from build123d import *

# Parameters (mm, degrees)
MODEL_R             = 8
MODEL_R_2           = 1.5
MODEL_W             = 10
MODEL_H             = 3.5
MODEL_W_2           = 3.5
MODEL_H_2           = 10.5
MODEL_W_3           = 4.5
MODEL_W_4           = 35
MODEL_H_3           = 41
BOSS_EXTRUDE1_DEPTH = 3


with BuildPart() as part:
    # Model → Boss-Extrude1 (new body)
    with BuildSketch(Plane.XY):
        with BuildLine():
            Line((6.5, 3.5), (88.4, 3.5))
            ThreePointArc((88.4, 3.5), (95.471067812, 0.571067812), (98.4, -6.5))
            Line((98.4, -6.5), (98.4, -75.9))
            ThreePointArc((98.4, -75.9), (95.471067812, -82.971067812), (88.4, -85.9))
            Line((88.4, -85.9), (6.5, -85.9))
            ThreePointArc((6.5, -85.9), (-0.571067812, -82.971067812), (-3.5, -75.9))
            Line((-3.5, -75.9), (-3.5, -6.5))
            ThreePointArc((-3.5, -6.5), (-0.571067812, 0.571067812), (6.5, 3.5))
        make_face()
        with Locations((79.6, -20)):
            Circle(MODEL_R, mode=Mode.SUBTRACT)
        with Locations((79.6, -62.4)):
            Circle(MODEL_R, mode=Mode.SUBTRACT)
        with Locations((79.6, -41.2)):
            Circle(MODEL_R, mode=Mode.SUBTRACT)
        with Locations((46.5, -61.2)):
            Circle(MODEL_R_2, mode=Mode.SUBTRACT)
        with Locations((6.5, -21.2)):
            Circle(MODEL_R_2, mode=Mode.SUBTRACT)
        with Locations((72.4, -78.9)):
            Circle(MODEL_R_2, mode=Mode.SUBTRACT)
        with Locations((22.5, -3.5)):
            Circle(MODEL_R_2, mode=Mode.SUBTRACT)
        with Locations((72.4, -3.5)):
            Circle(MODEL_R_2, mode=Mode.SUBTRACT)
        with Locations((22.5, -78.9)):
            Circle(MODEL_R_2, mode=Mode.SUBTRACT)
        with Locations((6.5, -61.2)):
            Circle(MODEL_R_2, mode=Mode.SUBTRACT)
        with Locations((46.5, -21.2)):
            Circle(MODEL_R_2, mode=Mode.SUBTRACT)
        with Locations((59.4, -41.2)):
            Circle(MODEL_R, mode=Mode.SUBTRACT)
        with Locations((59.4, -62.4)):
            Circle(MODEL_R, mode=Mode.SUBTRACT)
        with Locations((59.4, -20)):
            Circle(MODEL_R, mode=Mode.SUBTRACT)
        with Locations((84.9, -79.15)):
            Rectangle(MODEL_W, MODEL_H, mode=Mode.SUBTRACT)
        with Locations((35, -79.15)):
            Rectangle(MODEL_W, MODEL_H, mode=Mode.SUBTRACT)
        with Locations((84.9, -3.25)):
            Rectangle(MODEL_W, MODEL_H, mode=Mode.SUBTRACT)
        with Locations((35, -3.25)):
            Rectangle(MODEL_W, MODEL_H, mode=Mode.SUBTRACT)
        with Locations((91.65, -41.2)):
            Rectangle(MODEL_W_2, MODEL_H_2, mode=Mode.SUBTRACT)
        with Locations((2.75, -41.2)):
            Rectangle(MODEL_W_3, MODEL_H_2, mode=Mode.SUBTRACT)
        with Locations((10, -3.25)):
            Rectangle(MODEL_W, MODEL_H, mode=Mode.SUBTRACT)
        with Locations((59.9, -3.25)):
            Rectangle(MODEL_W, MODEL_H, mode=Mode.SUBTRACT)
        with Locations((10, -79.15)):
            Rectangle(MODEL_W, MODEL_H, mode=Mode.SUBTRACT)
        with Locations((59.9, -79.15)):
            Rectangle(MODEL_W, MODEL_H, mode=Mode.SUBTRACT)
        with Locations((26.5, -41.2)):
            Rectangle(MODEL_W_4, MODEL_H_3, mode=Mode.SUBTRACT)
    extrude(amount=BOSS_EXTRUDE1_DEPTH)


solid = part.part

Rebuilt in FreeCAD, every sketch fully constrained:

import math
import FreeCAD as App
import Part
import Sketcher

V = App.Vector
Q = App.Units.Quantity


def add_polygon(sketch, points):
    """Adds a closed chain of lines whose ends are joined by coincident constraints."""
    first, n = sketch.GeometryCount, len(points)
    for a, b in zip(points, points[1:] + points[:1]):
        sketch.addGeometry(Part.LineSegment(App.Vector(*a, 0), App.Vector(*b, 0)), False)
    for i in range(n):
        sketch.addConstraint(Sketcher.Constraint("Coincident", first + i, 2, first + (i + 1) % n, 1))

doc = App.newDocument("Part")
body = doc.addObject("PartDesign::Body", "Body")

sketch1 = body.newObject("Sketcher::SketchObject", "Sketch")
sketch1.AttachmentSupport = (doc.getObject("XY_Plane"), [""])
sketch1.MapMode = "FlatFace"
sketch1.addGeometry(Part.LineSegment(V(88.4, 3.5, 0), V(6.5, 3.5, 0)), False)
sketch1.addGeometry(Part.ArcOfCircle(Part.Circle(V(6.5, -6.5, 0), V(0, 0, 1), 10), math.radians(90), math.radians(180)), False)
sketch1.addGeometry(Part.LineSegment(V(-3.5, -6.5, 0), V(-3.5, -75.9, 0)), False)
sketch1.addGeometry(Part.ArcOfCircle(Part.Circle(V(6.5, -75.9, 0), V(0, 0, 1), 10), math.radians(180), math.radians(270)), False)
sketch1.addGeometry(Part.LineSegment(V(6.5, -85.9, 0), V(88.4, -85.9, 0)), False)
sketch1.addGeometry(Part.ArcOfCircle(Part.Circle(V(88.4, -75.9, 0), V(0, 0, 1), 10), math.radians(-90), math.radians(0)), False)
sketch1.addGeometry(Part.LineSegment(V(98.4, -75.9, 0), V(98.4, -6.5, 0)), False)
sketch1.addGeometry(Part.ArcOfCircle(Part.Circle(V(88.4, -6.5, 0), V(0, 0, 1), 10), math.radians(0), math.radians(90)), False)
add_polygon(sketch1, [(79.9, -80.9), (79.9, -77.4), (89.9, -77.4), (89.9, -80.9)])
sketch1.addGeometry(Part.Circle(V(72.4, -78.9, 0), V(0, 0, 1), 1.5), False)
sketch1.addGeometry(Part.Circle(V(79.6, -62.4, 0), V(0, 0, 1), 8), False)
add_polygon(sketch1, [(54.9, -80.9), (54.9, -77.4), (64.9, -77.4), (64.9, -80.9)])
sketch1.addGeometry(Part.Circle(V(59.4, -62.4, 0), V(0, 0, 1), 8), False)
add_polygon(sketch1, [(30, -80.9), (30, -77.4), (40, -77.4), (40, -80.9)])
sketch1.addGeometry(Part.Circle(V(46.5, -61.2, 0), V(0, 0, 1), 1.5), False)
sketch1.addGeometry(Part.Circle(V(22.5, -78.9, 0), V(0, 0, 1), 1.5), False)
add_polygon(sketch1, [(5, -80.9), (5, -77.4), (15, -77.4), (15, -80.9)])
sketch1.addGeometry(Part.Circle(V(6.5, -61.2, 0), V(0, 0, 1), 1.5), False)
add_polygon(sketch1, [(89.9, -46.5), (89.9, -36), (93.4, -36), (93.4, -46.5)])
sketch1.addGeometry(Part.Circle(V(79.6, -41.2, 0), V(0, 0, 1), 8), False)
sketch1.addGeometry(Part.Circle(V(59.4, -41.2, 0), V(0, 0, 1), 8), False)
sketch1.addGeometry(Part.Circle(V(79.6, -20, 0), V(0, 0, 1), 8), False)
add_polygon(sketch1, [(79.9, -5), (79.9, -1.5), (89.9, -1.5), (89.9, -5)])
sketch1.addGeometry(Part.Circle(V(72.4, -3.5, 0), V(0, 0, 1), 1.5), False)
sketch1.addGeometry(Part.Circle(V(59.4, -20, 0), V(0, 0, 1), 8), False)
add_polygon(sketch1, [(54.9, -5), (54.9, -1.5), (64.9, -1.5), (64.9, -5)])
add_polygon(sketch1, [(9, -61.7), (9, -20.7), (44, -20.7), (44, -61.7)])
add_polygon(sketch1, [(0.5, -46.5), (0.5, -36), (5, -36), (5, -46.5)])
sketch1.addGeometry(Part.Circle(V(46.5, -21.2, 0), V(0, 0, 1), 1.5), False)
add_polygon(sketch1, [(30, -5), (30, -1.5), (40, -1.5), (40, -5)])
sketch1.addGeometry(Part.Circle(V(6.5, -21.2, 0), V(0, 0, 1), 1.5), False)
sketch1.addGeometry(Part.Circle(V(22.5, -3.5, 0), V(0, 0, 1), 1.5), False)
add_polygon(sketch1, [(5, -5), (5, -1.5), (15, -1.5), (15, -5)])
sketch1.addConstraint([
    Sketcher.Constraint("Tangent", 0, 2, 1, 1),
    Sketcher.Constraint("Tangent", 1, 2, 2, 1),
    Sketcher.Constraint("Tangent", 2, 2, 3, 1),
    Sketcher.Constraint("Tangent", 3, 2, 4, 1),
    Sketcher.Constraint("Tangent", 4, 2, 5, 1),
    Sketcher.Constraint("Tangent", 5, 2, 6, 1),
    Sketcher.Constraint("Tangent", 6, 2, 7, 1),
    Sketcher.Constraint("Tangent", 7, 2, 0, 1),
    Sketcher.Constraint("Horizontal", 0),
    Sketcher.Constraint("Vertical", 2),
    Sketcher.Constraint("Horizontal", 4),
    Sketcher.Constraint("Vertical", 6),
    Sketcher.Constraint("Vertical", 8),
    Sketcher.Constraint("Horizontal", 9),
    Sketcher.Constraint("Vertical", 10),
    Sketcher.Constraint("Horizontal", 11),
    Sketcher.Constraint("Vertical", 14),
    Sketcher.Constraint("Horizontal", 15),
    Sketcher.Constraint("Vertical", 16),
    Sketcher.Constraint("Horizontal", 17),
    Sketcher.Constraint("Vertical", 19),
    Sketcher.Constraint("Horizontal", 20),
    Sketcher.Constraint("Vertical", 21),
    Sketcher.Constraint("Horizontal", 22),
    Sketcher.Constraint("Vertical", 25),
    Sketcher.Constraint("Horizontal", 26),
    Sketcher.Constraint("Vertical", 27),
    Sketcher.Constraint("Horizontal", 28),
    Sketcher.Constraint("Vertical", 30),
    Sketcher.Constraint("Horizontal", 31),
    Sketcher.Constraint("Vertical", 32),
    Sketcher.Constraint("Horizontal", 33),
    Sketcher.Constraint("Vertical", 37),
    Sketcher.Constraint("Horizontal", 38),
    Sketcher.Constraint("Vertical", 39),
    Sketcher.Constraint("Horizontal", 40),
    Sketcher.Constraint("Vertical", 43),
    Sketcher.Constraint("Horizontal", 44),
    Sketcher.Constraint("Vertical", 45),
    Sketcher.Constraint("Horizontal", 46),
    Sketcher.Constraint("Vertical", 47),
    Sketcher.Constraint("Horizontal", 48),
    Sketcher.Constraint("Vertical", 49),
    Sketcher.Constraint("Horizontal", 50),
    Sketcher.Constraint("Vertical", 51),
    Sketcher.Constraint("Horizontal", 52),
    Sketcher.Constraint("Vertical", 53),
    Sketcher.Constraint("Horizontal", 54),
    Sketcher.Constraint("Vertical", 56),
    Sketcher.Constraint("Horizontal", 57),
    Sketcher.Constraint("Vertical", 58),
    Sketcher.Constraint("Horizontal", 59),
    Sketcher.Constraint("Vertical", 62),
    Sketcher.Constraint("Horizontal", 63),
    Sketcher.Constraint("Vertical", 64),
    Sketcher.Constraint("Horizontal", 65),
    Sketcher.Constraint("Equal", 1, 3),
    Sketcher.Constraint("Equal", 3, 5),
    Sketcher.Constraint("Equal", 5, 7),
    Sketcher.Constraint("Equal", 13, 18),
    Sketcher.Constraint("Equal", 12, 23),
    Sketcher.Constraint("Equal", 23, 24),
    Sketcher.Constraint("Equal", 24, 29),
    Sketcher.Constraint("Equal", 18, 34),
    Sketcher.Constraint("Equal", 34, 35),
    Sketcher.Constraint("Equal", 35, 36),
    Sketcher.Constraint("Equal", 29, 41),
    Sketcher.Constraint("Equal", 36, 42),
    Sketcher.Constraint("Equal", 41, 55),
    Sketcher.Constraint("Equal", 55, 60),
    Sketcher.Constraint("Equal", 60, 61),
    Sketcher.Constraint("Horizontal", 13, 3, 18, 3),
    Sketcher.Constraint("Horizontal", 12, 3, 24, 3),
    Sketcher.Constraint("Horizontal", 23, 3, 29, 3),
    Sketcher.Constraint("Horizontal", 34, 3, 35, 3),
    Sketcher.Constraint("Horizontal", 36, 3, 42, 3),
    Sketcher.Constraint("Horizontal", 55, 3, 60, 3),
    Sketcher.Constraint("Horizontal", 41, 3, 61, 3),
    Sketcher.Constraint("Horizontal", 9, 2, 14, 2),
    Sketcher.Constraint("Horizontal", 11, 2, 16, 2),
    Sketcher.Constraint("Horizontal", 15, 2, 19, 2),
    Sketcher.Constraint("Horizontal", 17, 2, 21, 2),
    Sketcher.Constraint("Horizontal", 20, 2, 25, 2),
    Sketcher.Constraint("Horizontal", 22, 2, 27, 2),
    Sketcher.Constraint("Horizontal", 38, 2, 43, 2),
    Sketcher.Constraint("Horizontal", 40, 2, 45, 2),
    Sketcher.Constraint("Horizontal", 31, 2, 51, 2),
    Sketcher.Constraint("Horizontal", 33, 2, 53, 2),
    Sketcher.Constraint("Horizontal", 44, 2, 56, 2),
    Sketcher.Constraint("Horizontal", 46, 2, 58, 2),
    Sketcher.Constraint("Horizontal", 57, 2, 62, 2),
    Sketcher.Constraint("Horizontal", 59, 2, 64, 2),
    Sketcher.Constraint("Vertical", 3, 3, 29, 3),
    Sketcher.Constraint("Vertical", 13, 3, 34, 3),
    Sketcher.Constraint("Vertical", 18, 3, 35, 3),
    Sketcher.Constraint("Vertical", 34, 3, 36, 3),
    Sketcher.Constraint("Vertical", 12, 3, 41, 3),
    Sketcher.Constraint("Vertical", 35, 3, 42, 3),
    Sketcher.Constraint("Vertical", 23, 3, 55, 3),
    Sketcher.Constraint("Vertical", 29, 3, 60, 3),
    Sketcher.Constraint("Vertical", 24, 3, 61, 3),
    Sketcher.Constraint("Vertical", 10, 2, 30, 2),
    Sketcher.Constraint("Vertical", 11, 2, 37, 2),
    Sketcher.Constraint("Vertical", 33, 2, 38, 2),
    Sketcher.Constraint("Vertical", 17, 2, 43, 2),
    Sketcher.Constraint("Vertical", 16, 2, 44, 2),
    Sketcher.Constraint("Vertical", 28, 2, 52, 2),
    Sketcher.Constraint("Vertical", 22, 2, 56, 2),
    Sketcher.Constraint("Vertical", 21, 2, 57, 2),
    Sketcher.Constraint("Vertical", 53, 2, 62, 2),
    Sketcher.Constraint("Vertical", 27, 2, 63, 2),
    Sketcher.Constraint("Equal", 11, 15),
    Sketcher.Constraint("Equal", 17, 20),
    Sketcher.Constraint("Equal", 22, 26),
    Sketcher.Constraint("Equal", 33, 8),
    Sketcher.Constraint("Equal", 27, 37),
    Sketcher.Constraint("Diameter", 12, Q("3 mm")),
    Sketcher.Constraint("Diameter", 13, Q("16 mm")),
    Sketcher.Constraint("Radius", 1, Q("10 mm")),
    Sketcher.Constraint("DistanceX", 9, 1, 9, 2, Q("10 mm")),
    Sketcher.Constraint("DistanceX", 48, 1, 48, 2, Q("35 mm")),
    Sketcher.Constraint("DistanceY", 47, 1, 47, 2, Q("41 mm")),
    Sketcher.Constraint("DistanceX", 0, 2, 0, 1, Q("81.9 mm")),
    Sketcher.Constraint("DistanceX", 31, 1, 31, 2, Q("3.5 mm")),
    Sketcher.Constraint("DistanceX", 52, 1, 52, 2, Q("4.5 mm")),
    Sketcher.Constraint("DistanceY", 2, 2, 2, 1, Q("69.4 mm")),
    Sketcher.Constraint("DistanceY", 30, 1, 30, 2, Q("10.5 mm")),
    Sketcher.Constraint("DistanceY", 36, 3, -1, 1, Q("20 mm")),
    Sketcher.Constraint("DistanceX", -1, 1, 19, 2, Q("30 mm")),
    Sketcher.Constraint("DistanceX", -1, 1, 25, 2, Q("5 mm")),
    Sketcher.Constraint("DistanceY", 39, 2, -1, 1, Q("5 mm")),
    Sketcher.Constraint("DistanceX", -1, 1, 47, 2, Q("9 mm")),
    Sketcher.Constraint("DistanceX", -1, 1, 1, 3, Q("6.5 mm")),
    Sketcher.Constraint("DistanceY", 1, 3, -1, 1, Q("6.5 mm")),
    Sketcher.Constraint("DistanceX", -1, 1, 12, 3, Q("72.4 mm")),
    Sketcher.Constraint("DistanceY", 12, 3, -1, 1, Q("78.9 mm")),
    Sketcher.Constraint("DistanceX", -1, 1, 13, 3, Q("79.6 mm")),
    Sketcher.Constraint("DistanceY", 13, 3, -1, 1, Q("62.4 mm")),
    Sketcher.Constraint("DistanceX", -1, 1, 18, 3, Q("59.4 mm")),
    Sketcher.Constraint("DistanceX", -1, 1, 23, 3, Q("46.5 mm")),
    Sketcher.Constraint("DistanceY", 23, 3, -1, 1, Q("61.2 mm")),
    Sketcher.Constraint("DistanceX", -1, 1, 24, 3, Q("22.5 mm")),
    Sketcher.Constraint("DistanceY", 34, 3, -1, 1, Q("41.2 mm")),
    Sketcher.Constraint("DistanceY", 41, 3, -1, 1, Q("3.5 mm")),
    Sketcher.Constraint("DistanceY", 55, 3, -1, 1, Q("21.2 mm")),
    Sketcher.Constraint("DistanceX", -1, 1, 8, 2, Q("79.9 mm")),
    Sketcher.Constraint("DistanceY", 8, 2, -1, 1, Q("77.4 mm")),
    Sketcher.Constraint("DistanceX", -1, 1, 14, 2, Q("54.9 mm")),
    Sketcher.Constraint("DistanceY", 47, 2, -1, 1, Q("20.7 mm")),
    Sketcher.Constraint("DistanceY", 30, 2, -1, 1, Q("35.95 mm")),
])
pad1 = body.newObject("PartDesign::Pad", "Pad")
pad1.Profile = sketch1
pad1.Length = 3

doc.recompute()
